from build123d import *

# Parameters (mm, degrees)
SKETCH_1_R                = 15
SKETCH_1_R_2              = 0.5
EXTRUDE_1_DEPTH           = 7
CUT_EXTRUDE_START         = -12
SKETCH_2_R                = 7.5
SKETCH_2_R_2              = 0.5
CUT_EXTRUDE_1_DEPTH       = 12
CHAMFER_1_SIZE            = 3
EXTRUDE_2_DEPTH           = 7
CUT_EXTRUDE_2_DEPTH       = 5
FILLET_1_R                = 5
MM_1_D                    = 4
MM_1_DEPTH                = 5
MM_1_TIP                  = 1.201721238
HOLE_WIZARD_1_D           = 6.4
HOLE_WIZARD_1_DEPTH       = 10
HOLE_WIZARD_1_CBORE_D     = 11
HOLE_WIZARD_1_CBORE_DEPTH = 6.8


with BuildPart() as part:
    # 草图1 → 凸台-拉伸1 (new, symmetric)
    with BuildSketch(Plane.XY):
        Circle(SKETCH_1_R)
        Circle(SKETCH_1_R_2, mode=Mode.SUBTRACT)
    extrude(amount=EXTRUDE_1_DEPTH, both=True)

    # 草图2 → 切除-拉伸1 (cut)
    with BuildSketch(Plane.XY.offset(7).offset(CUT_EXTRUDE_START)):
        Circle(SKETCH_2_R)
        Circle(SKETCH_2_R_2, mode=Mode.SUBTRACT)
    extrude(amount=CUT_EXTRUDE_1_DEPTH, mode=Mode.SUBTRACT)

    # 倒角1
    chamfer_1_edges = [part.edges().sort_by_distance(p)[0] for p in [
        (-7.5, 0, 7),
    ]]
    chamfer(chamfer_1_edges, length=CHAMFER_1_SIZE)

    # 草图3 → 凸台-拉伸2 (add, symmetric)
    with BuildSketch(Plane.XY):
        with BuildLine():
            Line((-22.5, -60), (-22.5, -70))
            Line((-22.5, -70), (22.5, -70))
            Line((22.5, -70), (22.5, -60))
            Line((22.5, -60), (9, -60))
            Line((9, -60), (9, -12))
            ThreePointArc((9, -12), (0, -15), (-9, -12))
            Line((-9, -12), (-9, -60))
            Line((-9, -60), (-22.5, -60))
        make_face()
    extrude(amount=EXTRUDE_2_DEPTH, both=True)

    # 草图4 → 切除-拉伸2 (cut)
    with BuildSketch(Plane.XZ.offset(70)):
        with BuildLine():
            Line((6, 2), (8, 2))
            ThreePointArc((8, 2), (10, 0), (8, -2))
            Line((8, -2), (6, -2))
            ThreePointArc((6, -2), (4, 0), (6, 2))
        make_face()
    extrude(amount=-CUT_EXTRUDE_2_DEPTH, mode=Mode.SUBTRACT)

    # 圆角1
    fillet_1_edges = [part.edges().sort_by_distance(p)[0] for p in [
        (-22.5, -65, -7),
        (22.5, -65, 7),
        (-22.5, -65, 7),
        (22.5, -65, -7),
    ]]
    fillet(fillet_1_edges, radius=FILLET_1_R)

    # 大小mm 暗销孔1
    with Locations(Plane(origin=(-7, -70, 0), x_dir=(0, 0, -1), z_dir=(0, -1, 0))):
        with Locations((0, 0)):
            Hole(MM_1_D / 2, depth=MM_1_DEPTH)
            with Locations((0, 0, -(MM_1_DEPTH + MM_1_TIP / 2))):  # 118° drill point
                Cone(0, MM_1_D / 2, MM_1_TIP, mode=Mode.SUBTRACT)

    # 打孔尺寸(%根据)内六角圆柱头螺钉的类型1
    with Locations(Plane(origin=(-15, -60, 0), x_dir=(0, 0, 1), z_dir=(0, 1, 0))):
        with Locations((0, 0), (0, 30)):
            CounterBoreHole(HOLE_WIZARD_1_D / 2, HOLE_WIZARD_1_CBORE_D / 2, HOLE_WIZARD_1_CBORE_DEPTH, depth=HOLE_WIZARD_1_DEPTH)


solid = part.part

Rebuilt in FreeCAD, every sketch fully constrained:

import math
import FreeCAD as App
import Part
import Sketcher


def edges_at(feature, points):
    """Names of the edges that pass closest to the given points."""
    edges = feature.Shape.Edges
    near = lambda p: min(range(len(edges)), key=lambda i: edges[i].distToShape(Part.Vertex(*p))[0])
    return sorted({f"Edge{near(p) + 1}" for p in points})

doc = App.newDocument("Part")
body = doc.addObject("PartDesign::Body", "Body")

# Sketch on XY plane
sketch1 = body.newObject("Sketcher::SketchObject", "Sketch")
sketch1.AttachmentSupport = (doc.getObject("XY_Plane"), [""])
sketch1.MapMode = "FlatFace"
sketch1.addGeometry([
    Part.Circle(App.Vector(0, 0, 0), App.Vector(0, 0, 1), 15),
    Part.Circle(App.Vector(0, 0, 0), App.Vector(0, 0, 1), 0.5),
], False)
sketch1.addConstraint([
    Sketcher.Constraint("Coincident", 0, 3, -1, 1),
    Sketcher.Constraint("Coincident", 1, 3, -1, 1),
    Sketcher.Constraint("Diameter", 0, 30.0),
    Sketcher.Constraint("Diameter", 1, 1.0),
])
pad1 = body.newObject("PartDesign::Pad", "Pad")
pad1.Profile = sketch1
pad1.Length = 14
pad1.Midplane = True

# Sketch on XY plane
sketch2 = body.newObject("Sketcher::SketchObject", "Sketch001")
sketch2.AttachmentSupport = (doc.getObject("XY_Plane"), [""])
sketch2.MapMode = "FlatFace"
sketch2.AttachmentOffset = App.Placement(App.Vector(0, 0, -5), App.Rotation())
sketch2.addGeometry([
    Part.Circle(App.Vector(0, 0, 0), App.Vector(0, 0, 1), 7.5),
    Part.Circle(App.Vector(0, 0, 0), App.Vector(0, 0, 1), 0.5),
], False)
sketch2.addConstraint([
    Sketcher.Constraint("Coincident", 0, 3, -1, 1),
    Sketcher.Constraint("Coincident", 1, 3, -1, 1),
    Sketcher.Constraint("Diameter", 0, 15.0),
    Sketcher.Constraint("Diameter", 1, 1.0),
])
pocket1 = body.newObject("PartDesign::Pocket", "Pocket")
pocket1.Profile = sketch2
pocket1.Length = 12
pocket1.Reversed = True
doc.recompute()

chamfer = body.newObject("PartDesign::Chamfer", "Chamfer")
chamfer.Base = (pocket1, edges_at(pocket1, [(-7.5, 0, 7)]))
chamfer.Size = 3

# Sketch on XY plane
sketch3 = body.newObject("Sketcher::SketchObject", "Sketch002")
sketch3.AttachmentSupport = (doc.getObject("XY_Plane"), [""])
sketch3.MapMode = "FlatFace"
sketch3.addGeometry([
    Part.LineSegment(App.Vector(-22.5, -60, 0), App.Vector(-22.5, -70, 0)),  # 0
    Part.LineSegment(App.Vector(-22.5, -70, 0), App.Vector(22.5, -70, 0)),  # 1
    Part.LineSegment(App.Vector(22.5, -70, 0), App.Vector(22.5, -60, 0)),  # 2
    Part.LineSegment(App.Vector(22.5, -60, 0), App.Vector(9, -60, 0)),  # 3
    Part.LineSegment(App.Vector(9, -60, 0), App.Vector(9, -12, 0)),  # 4
    Part.ArcOfCircle(Part.Circle(App.Vector(0, 0, 0), App.Vector(0, 0, 1), 15), math.radians(-126.869898), math.radians(-53.130102)),  # 5
    Part.LineSegment(App.Vector(-9, -12, 0), App.Vector(-9, -60, 0)),  # 6
    Part.LineSegment(App.Vector(-9, -60, 0), App.Vector(-22.5, -60, 0)),  # 7
], False)
sketch3.addConstraint([
    Sketcher.Constraint("Coincident", 0, 2, 1, 1),
    Sketcher.Constraint("Coincident", 1, 2, 2, 1),
    Sketcher.Constraint("Coincident", 2, 2, 3, 1),
    Sketcher.Constraint("Coincident", 3, 2, 4, 1),
    Sketcher.Constraint("Coincident", 4, 2, 5, 2),
    Sketcher.Constraint("Coincident", 5, 1, 6, 1),
    Sketcher.Constraint("Coincident", 6, 2, 7, 1),
    Sketcher.Constraint("Coincident", 7, 2, 0, 1),
    Sketcher.Constraint("Vertical", 0),
    Sketcher.Constraint("Horizontal", 1),
    Sketcher.Constraint("Vertical", 2),
    Sketcher.Constraint("Horizontal", 3),
    Sketcher.Constraint("Vertical", 4),
    Sketcher.Constraint("Vertical", 6),
    Sketcher.Constraint("Horizontal", 7),
    Sketcher.Constraint("Coincident", 5, 3, -1, 1),
    Sketcher.Constraint("Symmetric", 3, 2, 6, 2, -2),
    Sketcher.Constraint("Equal", 3, 7),
    Sketcher.Constraint("Radius", 5, 15.0),
    Sketcher.Constraint("DistanceX", 1, 1, 1, 2, 45.0),
    Sketcher.Constraint("DistanceY", 0, 2, 0, 1, 10.0),
    Sketcher.Constraint("DistanceY", 4, 1, 4, 2, 48.0),
    Sketcher.Constraint("DistanceX", 3, 2, 3, 1, 13.5),
])
pad2 = body.newObject("PartDesign::Pad", "Pad001")
pad2.Profile = sketch3
pad2.Length = 14
pad2.Midplane = True

# Sketch on XZ plane
sketch4 = body.newObject("Sketcher::SketchObject", "Sketch003")
sketch4.AttachmentSupport = (doc.getObject("XZ_Plane"), [""])
sketch4.MapMode = "FlatFace"
sketch4.AttachmentOffset = App.Placement(App.Vector(0, 0, 70), App.Rotation())
sketch4.addGeometry([
    Part.LineSegment(App.Vector(8, 2, 0), App.Vector(6, 2, 0)),
    Part.ArcOfCircle(Part.Circle(App.Vector(6, 0, 0), App.Vector(0, 0, 1), 2), math.radians(90), math.radians(270)),
    Part.LineSegment(App.Vector(6, -2, 0), App.Vector(8, -2, 0)),
    Part.ArcOfCircle(Part.Circle(App.Vector(8, 0, 0), App.Vector(0, 0, 1), 2), math.radians(-90), math.radians(90)),
], False)
sketch4.addConstraint([
    Sketcher.Constraint("Tangent", 0, 2, 1, 1),
    Sketcher.Constraint("Tangent", 1, 2, 2, 1),
    Sketcher.Constraint("Tangent", 2, 2, 3, 1),
    Sketcher.Constraint("Tangent", 3, 2, 0, 1),
    Sketcher.Constraint("Horizontal", 0),
    Sketcher.Constraint("Horizontal", 2),
    Sketcher.Constraint("PointOnObject", 1, 3, -1),
    Sketcher.Constraint("Radius", 1, 2.0),
    Sketcher.Constraint("DistanceX", 0, 2, 0, 1, 2.0),
    Sketcher.Constraint("DistanceX", -1, 1, 1, 3, 6.0),
])
pocket2 = body.newObject("PartDesign::Pocket", "Pocket001")
pocket2.Profile = sketch4
pocket2.Length = 5
doc.recompute()

fillet = body.newObject("PartDesign::Fillet", "Fillet")
fillet.Base = (pocket2, edges_at(pocket2, [
    (-22.5, -65, -7),
    (22.5, -65, 7),
    (-22.5, -65, 7),
    (22.5, -65, -7),
]))
fillet.Radius = 5

# Sketch on XZ plane
sketch5 = body.newObject("Sketcher::SketchObject", "Sketch004")
sketch5.AttachmentSupport = (doc.getObject("XZ_Plane"), [""])
sketch5.MapMode = "FlatFace"
sketch5.AttachmentOffset = App.Placement(App.Vector(0, 0, 70), App.Rotation())
sketch5.addGeometry(Part.Circle(App.Vector(-7, 0, 0), App.Vector(0, 0, 1), 2), False)
sketch5.addConstraint([
    Sketcher.Constraint("PointOnObject", 0, 3, -1),
    Sketcher.Constraint("Diameter", 0, 4.0),
    Sketcher.Constraint("DistanceX", 0, 3, -1, 1, 7.0),
])
doc.recompute()
hole = body.newObject("PartDesign::Hole", "Hole")
hole.Profile = sketch5
hole.ThreadType = "None"
hole.Diameter = 4
hole.DepthType = "Dimension"
hole.Depth = 5
hole.DrillPoint = "Angled"
hole.DrillPointAngle = 118

# Sketch on XZ plane
sketch6 = body.newObject("Sketcher::SketchObject", "Sketch005")
sketch6.AttachmentSupport = (doc.getObject("XZ_Plane"), [""])
sketch6.MapMode = "FlatFace"
sketch6.AttachmentOffset = App.Placement(App.Vector(0, 0, 60), App.Rotation())
sketch6.addGeometry([
    Part.Circle(App.Vector(-15, 0, 0), App.Vector(0, 0, 1), 3.2),
    Part.Circle(App.Vector(15, 0, 0), App.Vector(0, 0, 1), 3.2),
], False)
sketch6.addConstraint([
    Sketcher.Constraint("Equal", 0, 1),
    Sketcher.Constraint("Symmetric", 0, 3, 1, 3, -1, 1),
    Sketcher.Constraint("PointOnObject", 0, 3, -1),
    Sketcher.Constraint("Diameter", 0, 6.4),
    Sketcher.Constraint("DistanceX", 0, 3, -1, 1, 15.0),
])
doc.recompute()
hole2 = body.newObject("PartDesign::Hole", "Hole001")
hole2.Profile = sketch6
hole2.ThreadType = "None"
hole2.Diameter = 6.4
hole2.DepthType = "Dimension"
hole2.Depth = 10
hole2.DrillPoint = "Flat"
hole2.HoleCutType = "Counterbore"
hole2.HoleCutDiameter = 11
hole2.HoleCutDepth = 6.8
hole2.Reversed = True

doc.recompute()
